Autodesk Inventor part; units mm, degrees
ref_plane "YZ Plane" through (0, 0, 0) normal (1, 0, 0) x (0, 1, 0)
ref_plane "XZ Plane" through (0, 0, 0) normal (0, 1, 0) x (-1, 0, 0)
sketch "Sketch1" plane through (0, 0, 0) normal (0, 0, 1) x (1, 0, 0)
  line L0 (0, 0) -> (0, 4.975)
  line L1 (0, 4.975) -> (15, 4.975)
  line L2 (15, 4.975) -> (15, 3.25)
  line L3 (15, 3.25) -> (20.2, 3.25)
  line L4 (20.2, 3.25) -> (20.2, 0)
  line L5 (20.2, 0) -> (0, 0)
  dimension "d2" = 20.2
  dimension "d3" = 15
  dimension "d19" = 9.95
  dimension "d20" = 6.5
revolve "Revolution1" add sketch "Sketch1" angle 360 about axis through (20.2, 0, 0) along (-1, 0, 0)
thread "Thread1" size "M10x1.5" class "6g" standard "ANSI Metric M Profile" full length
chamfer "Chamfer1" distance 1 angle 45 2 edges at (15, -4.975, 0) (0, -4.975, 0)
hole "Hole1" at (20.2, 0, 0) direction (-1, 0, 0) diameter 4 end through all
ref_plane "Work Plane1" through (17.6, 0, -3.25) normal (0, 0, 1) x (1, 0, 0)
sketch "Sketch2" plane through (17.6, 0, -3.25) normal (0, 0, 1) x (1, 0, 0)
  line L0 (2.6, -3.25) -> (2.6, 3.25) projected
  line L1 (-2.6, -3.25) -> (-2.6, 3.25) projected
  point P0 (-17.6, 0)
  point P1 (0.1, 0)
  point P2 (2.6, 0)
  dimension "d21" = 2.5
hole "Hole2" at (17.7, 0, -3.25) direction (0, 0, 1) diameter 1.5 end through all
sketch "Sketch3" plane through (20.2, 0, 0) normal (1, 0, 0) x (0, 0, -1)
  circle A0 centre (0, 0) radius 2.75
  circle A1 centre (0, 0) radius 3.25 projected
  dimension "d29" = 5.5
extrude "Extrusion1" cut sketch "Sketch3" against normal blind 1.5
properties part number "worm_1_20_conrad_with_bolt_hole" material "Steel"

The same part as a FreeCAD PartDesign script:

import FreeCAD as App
import Part
import Sketcher

V = App.Vector
Q = App.Units.Quantity


def edges_at(feature, points):
    """Names of the edges that pass closest to the given points."""
    edges = feature.Shape.Edges
    near = lambda p: min(range(len(edges)), key=lambda i: edges[i].distToShape(Part.Vertex(*p))[0])
    return sorted({f"Edge{near(p) + 1}" for p in points})

doc = App.newDocument("Part")
body = doc.addObject("PartDesign::Body", "Body")

sketch1 = body.newObject("Sketcher::SketchObject", "Sketch")
sketch1.AttachmentSupport = (doc.getObject("XY_Plane"), [""])
sketch1.MapMode = "FlatFace"
sketch1.addGeometry(Part.LineSegment(V(0, 4.975, 0), V(0, 0, 0)), False)
sketch1.addGeometry(Part.LineSegment(V(0, 0, 0), V(20.2, 0, 0)), False)
sketch1.addGeometry(Part.LineSegment(V(20.2, 0, 0), V(20.2, 3.25, 0)), False)
sketch1.addGeometry(Part.LineSegment(V(20.2, 3.25, 0), V(15, 3.25, 0)), False)
sketch1.addGeometry(Part.LineSegment(V(15, 3.25, 0), V(15, 4.975, 0)), False)
sketch1.addGeometry(Part.LineSegment(V(15, 4.975, 0), V(0, 4.975, 0)), False)
sketch1.addConstraint(Sketcher.Constraint("Coincident", 0, 2, 1, 1))
sketch1.addConstraint(Sketcher.Constraint("Coincident", 1, 2, 2, 1))
sketch1.addConstraint(Sketcher.Constraint("Coincident", 2, 2, 3, 1))
sketch1.addConstraint(Sketcher.Constraint("Coincident", 3, 2, 4, 1))
sketch1.addConstraint(Sketcher.Constraint("Coincident", 4, 2, 5, 1))
sketch1.addConstraint(Sketcher.Constraint("Coincident", 5, 2, 0, 1))
sketch1.addConstraint(Sketcher.Constraint("Vertical", 0))
sketch1.addConstraint(Sketcher.Constraint("Horizontal", 1))
sketch1.addConstraint(Sketcher.Constraint("Vertical", 2))
sketch1.addConstraint(Sketcher.Constraint("Horizontal", 3))
sketch1.addConstraint(Sketcher.Constraint("Vertical", 4))
sketch1.addConstraint(Sketcher.Constraint("Horizontal", 5))
sketch1.addConstraint(Sketcher.Constraint("Coincident", 0, 2, -1, 1))
sketch1.addConstraint(Sketcher.Constraint("DistanceX", 5, 2, 5, 1, Q("15 mm")))
sketch1.addConstraint(Sketcher.Constraint("DistanceX", 1, 1, 1, 2, Q("20.2 mm")))
sketch1.addConstraint(Sketcher.Constraint("DistanceY", 2, 1, 2, 2, Q("3.25 mm")))
sketch1.addConstraint(Sketcher.Constraint("DistanceY", 0, 2, 0, 1, Q("4.975 mm")))
revolution = body.newObject("PartDesign::Revolution", "Revolution")
revolution.Profile = sketch1
revolution.ReferenceAxis = (sketch1, ["H_Axis"])
revolution.Angle = 360
doc.recompute()

chamfer = body.newObject("PartDesign::Chamfer", "Chamfer")
chamfer.Base = (revolution, edges_at(revolution, [(15, -4.975, 0), (0, -4.975, 0)]))
chamfer.Size = 1

sketch2 = body.newObject("Sketcher::SketchObject", "Sketch001")
sketch2.AttachmentSupport = (doc.getObject("YZ_Plane"), [""])
sketch2.MapMode = "FlatFace"
sketch2.AttachmentOffset = App.Placement(V(0, 0, 20.2), App.Rotation())
sketch2.addGeometry(Part.Circle(V(0, 0, 0), V(0, 0, 1), 2), False)
sketch2.addConstraint(Sketcher.Constraint("Coincident", 0, 3, -1, 1))
sketch2.addConstraint(Sketcher.Constraint("Diameter", 0, Q("4 mm")))
doc.recompute()
hole = body.newObject("PartDesign::Hole", "Hole")
hole.Profile = sketch2
hole.ThreadType = "None"
hole.Diameter = 4
hole.DepthType = "ThroughAll"

sketch3 = body.newObject("Sketcher::SketchObject", "Sketch002")
sketch3.AttachmentSupport = (doc.getObject("XY_Plane"), [""])
sketch3.MapMode = "FlatFace"
sketch3.AttachmentOffset = App.Placement(V(0, 0, -3.25), App.Rotation())
sketch3.addGeometry(Part.Circle(V(17.7, 0, 0), V(0, 0, 1), 0.75), False)
sketch3.addConstraint(Sketcher.Constraint("PointOnObject", 0, 3, -1))
sketch3.addConstraint(Sketcher.Constraint("Diameter", 0, Q("1.5 mm")))
sketch3.addConstraint(Sketcher.Constraint("DistanceX", -1, 1, 0, 3, Q("17.7 mm")))
doc.recompute()
hole2 = body.newObject("PartDesign::Hole", "Hole001")
hole2.Profile = sketch3
hole2.ThreadType = "None"
hole2.Diameter = 1.5
hole2.DepthType = "ThroughAll"
hole2.Reversed = True

sketch4 = body.newObject("Sketcher::SketchObject", "Sketch003")
sketch4.AttachmentSupport = (doc.getObject("YZ_Plane"), [""])
sketch4.MapMode = "FlatFace"
sketch4.AttachmentOffset = App.Placement(V(0, 0, 20.2), App.Rotation())
sketch4.addGeometry(Part.Circle(V(0, 0, 0), V(0, 0, 1), 3.25), False)
sketch4.addGeometry(Part.Circle(V(0, 0, 0), V(0, 0, 1), 2.75), False)
sketch4.addConstraint(Sketcher.Constraint("Coincident", 0, 3, -1, 1))
sketch4.addConstraint(Sketcher.Constraint("Coincident", 1, 3, -1, 1))
sketch4.addConstraint(Sketcher.Constraint("Diameter", 1, Q("5.5 mm")))
sketch4.addConstraint(Sketcher.Constraint("Diameter", 0, Q("6.5 mm")))
pocket1 = body.newObject("PartDesign::Pocket", "Pocket")
pocket1.Profile = sketch4
pocket1.Length = 1.5

doc.recompute()
